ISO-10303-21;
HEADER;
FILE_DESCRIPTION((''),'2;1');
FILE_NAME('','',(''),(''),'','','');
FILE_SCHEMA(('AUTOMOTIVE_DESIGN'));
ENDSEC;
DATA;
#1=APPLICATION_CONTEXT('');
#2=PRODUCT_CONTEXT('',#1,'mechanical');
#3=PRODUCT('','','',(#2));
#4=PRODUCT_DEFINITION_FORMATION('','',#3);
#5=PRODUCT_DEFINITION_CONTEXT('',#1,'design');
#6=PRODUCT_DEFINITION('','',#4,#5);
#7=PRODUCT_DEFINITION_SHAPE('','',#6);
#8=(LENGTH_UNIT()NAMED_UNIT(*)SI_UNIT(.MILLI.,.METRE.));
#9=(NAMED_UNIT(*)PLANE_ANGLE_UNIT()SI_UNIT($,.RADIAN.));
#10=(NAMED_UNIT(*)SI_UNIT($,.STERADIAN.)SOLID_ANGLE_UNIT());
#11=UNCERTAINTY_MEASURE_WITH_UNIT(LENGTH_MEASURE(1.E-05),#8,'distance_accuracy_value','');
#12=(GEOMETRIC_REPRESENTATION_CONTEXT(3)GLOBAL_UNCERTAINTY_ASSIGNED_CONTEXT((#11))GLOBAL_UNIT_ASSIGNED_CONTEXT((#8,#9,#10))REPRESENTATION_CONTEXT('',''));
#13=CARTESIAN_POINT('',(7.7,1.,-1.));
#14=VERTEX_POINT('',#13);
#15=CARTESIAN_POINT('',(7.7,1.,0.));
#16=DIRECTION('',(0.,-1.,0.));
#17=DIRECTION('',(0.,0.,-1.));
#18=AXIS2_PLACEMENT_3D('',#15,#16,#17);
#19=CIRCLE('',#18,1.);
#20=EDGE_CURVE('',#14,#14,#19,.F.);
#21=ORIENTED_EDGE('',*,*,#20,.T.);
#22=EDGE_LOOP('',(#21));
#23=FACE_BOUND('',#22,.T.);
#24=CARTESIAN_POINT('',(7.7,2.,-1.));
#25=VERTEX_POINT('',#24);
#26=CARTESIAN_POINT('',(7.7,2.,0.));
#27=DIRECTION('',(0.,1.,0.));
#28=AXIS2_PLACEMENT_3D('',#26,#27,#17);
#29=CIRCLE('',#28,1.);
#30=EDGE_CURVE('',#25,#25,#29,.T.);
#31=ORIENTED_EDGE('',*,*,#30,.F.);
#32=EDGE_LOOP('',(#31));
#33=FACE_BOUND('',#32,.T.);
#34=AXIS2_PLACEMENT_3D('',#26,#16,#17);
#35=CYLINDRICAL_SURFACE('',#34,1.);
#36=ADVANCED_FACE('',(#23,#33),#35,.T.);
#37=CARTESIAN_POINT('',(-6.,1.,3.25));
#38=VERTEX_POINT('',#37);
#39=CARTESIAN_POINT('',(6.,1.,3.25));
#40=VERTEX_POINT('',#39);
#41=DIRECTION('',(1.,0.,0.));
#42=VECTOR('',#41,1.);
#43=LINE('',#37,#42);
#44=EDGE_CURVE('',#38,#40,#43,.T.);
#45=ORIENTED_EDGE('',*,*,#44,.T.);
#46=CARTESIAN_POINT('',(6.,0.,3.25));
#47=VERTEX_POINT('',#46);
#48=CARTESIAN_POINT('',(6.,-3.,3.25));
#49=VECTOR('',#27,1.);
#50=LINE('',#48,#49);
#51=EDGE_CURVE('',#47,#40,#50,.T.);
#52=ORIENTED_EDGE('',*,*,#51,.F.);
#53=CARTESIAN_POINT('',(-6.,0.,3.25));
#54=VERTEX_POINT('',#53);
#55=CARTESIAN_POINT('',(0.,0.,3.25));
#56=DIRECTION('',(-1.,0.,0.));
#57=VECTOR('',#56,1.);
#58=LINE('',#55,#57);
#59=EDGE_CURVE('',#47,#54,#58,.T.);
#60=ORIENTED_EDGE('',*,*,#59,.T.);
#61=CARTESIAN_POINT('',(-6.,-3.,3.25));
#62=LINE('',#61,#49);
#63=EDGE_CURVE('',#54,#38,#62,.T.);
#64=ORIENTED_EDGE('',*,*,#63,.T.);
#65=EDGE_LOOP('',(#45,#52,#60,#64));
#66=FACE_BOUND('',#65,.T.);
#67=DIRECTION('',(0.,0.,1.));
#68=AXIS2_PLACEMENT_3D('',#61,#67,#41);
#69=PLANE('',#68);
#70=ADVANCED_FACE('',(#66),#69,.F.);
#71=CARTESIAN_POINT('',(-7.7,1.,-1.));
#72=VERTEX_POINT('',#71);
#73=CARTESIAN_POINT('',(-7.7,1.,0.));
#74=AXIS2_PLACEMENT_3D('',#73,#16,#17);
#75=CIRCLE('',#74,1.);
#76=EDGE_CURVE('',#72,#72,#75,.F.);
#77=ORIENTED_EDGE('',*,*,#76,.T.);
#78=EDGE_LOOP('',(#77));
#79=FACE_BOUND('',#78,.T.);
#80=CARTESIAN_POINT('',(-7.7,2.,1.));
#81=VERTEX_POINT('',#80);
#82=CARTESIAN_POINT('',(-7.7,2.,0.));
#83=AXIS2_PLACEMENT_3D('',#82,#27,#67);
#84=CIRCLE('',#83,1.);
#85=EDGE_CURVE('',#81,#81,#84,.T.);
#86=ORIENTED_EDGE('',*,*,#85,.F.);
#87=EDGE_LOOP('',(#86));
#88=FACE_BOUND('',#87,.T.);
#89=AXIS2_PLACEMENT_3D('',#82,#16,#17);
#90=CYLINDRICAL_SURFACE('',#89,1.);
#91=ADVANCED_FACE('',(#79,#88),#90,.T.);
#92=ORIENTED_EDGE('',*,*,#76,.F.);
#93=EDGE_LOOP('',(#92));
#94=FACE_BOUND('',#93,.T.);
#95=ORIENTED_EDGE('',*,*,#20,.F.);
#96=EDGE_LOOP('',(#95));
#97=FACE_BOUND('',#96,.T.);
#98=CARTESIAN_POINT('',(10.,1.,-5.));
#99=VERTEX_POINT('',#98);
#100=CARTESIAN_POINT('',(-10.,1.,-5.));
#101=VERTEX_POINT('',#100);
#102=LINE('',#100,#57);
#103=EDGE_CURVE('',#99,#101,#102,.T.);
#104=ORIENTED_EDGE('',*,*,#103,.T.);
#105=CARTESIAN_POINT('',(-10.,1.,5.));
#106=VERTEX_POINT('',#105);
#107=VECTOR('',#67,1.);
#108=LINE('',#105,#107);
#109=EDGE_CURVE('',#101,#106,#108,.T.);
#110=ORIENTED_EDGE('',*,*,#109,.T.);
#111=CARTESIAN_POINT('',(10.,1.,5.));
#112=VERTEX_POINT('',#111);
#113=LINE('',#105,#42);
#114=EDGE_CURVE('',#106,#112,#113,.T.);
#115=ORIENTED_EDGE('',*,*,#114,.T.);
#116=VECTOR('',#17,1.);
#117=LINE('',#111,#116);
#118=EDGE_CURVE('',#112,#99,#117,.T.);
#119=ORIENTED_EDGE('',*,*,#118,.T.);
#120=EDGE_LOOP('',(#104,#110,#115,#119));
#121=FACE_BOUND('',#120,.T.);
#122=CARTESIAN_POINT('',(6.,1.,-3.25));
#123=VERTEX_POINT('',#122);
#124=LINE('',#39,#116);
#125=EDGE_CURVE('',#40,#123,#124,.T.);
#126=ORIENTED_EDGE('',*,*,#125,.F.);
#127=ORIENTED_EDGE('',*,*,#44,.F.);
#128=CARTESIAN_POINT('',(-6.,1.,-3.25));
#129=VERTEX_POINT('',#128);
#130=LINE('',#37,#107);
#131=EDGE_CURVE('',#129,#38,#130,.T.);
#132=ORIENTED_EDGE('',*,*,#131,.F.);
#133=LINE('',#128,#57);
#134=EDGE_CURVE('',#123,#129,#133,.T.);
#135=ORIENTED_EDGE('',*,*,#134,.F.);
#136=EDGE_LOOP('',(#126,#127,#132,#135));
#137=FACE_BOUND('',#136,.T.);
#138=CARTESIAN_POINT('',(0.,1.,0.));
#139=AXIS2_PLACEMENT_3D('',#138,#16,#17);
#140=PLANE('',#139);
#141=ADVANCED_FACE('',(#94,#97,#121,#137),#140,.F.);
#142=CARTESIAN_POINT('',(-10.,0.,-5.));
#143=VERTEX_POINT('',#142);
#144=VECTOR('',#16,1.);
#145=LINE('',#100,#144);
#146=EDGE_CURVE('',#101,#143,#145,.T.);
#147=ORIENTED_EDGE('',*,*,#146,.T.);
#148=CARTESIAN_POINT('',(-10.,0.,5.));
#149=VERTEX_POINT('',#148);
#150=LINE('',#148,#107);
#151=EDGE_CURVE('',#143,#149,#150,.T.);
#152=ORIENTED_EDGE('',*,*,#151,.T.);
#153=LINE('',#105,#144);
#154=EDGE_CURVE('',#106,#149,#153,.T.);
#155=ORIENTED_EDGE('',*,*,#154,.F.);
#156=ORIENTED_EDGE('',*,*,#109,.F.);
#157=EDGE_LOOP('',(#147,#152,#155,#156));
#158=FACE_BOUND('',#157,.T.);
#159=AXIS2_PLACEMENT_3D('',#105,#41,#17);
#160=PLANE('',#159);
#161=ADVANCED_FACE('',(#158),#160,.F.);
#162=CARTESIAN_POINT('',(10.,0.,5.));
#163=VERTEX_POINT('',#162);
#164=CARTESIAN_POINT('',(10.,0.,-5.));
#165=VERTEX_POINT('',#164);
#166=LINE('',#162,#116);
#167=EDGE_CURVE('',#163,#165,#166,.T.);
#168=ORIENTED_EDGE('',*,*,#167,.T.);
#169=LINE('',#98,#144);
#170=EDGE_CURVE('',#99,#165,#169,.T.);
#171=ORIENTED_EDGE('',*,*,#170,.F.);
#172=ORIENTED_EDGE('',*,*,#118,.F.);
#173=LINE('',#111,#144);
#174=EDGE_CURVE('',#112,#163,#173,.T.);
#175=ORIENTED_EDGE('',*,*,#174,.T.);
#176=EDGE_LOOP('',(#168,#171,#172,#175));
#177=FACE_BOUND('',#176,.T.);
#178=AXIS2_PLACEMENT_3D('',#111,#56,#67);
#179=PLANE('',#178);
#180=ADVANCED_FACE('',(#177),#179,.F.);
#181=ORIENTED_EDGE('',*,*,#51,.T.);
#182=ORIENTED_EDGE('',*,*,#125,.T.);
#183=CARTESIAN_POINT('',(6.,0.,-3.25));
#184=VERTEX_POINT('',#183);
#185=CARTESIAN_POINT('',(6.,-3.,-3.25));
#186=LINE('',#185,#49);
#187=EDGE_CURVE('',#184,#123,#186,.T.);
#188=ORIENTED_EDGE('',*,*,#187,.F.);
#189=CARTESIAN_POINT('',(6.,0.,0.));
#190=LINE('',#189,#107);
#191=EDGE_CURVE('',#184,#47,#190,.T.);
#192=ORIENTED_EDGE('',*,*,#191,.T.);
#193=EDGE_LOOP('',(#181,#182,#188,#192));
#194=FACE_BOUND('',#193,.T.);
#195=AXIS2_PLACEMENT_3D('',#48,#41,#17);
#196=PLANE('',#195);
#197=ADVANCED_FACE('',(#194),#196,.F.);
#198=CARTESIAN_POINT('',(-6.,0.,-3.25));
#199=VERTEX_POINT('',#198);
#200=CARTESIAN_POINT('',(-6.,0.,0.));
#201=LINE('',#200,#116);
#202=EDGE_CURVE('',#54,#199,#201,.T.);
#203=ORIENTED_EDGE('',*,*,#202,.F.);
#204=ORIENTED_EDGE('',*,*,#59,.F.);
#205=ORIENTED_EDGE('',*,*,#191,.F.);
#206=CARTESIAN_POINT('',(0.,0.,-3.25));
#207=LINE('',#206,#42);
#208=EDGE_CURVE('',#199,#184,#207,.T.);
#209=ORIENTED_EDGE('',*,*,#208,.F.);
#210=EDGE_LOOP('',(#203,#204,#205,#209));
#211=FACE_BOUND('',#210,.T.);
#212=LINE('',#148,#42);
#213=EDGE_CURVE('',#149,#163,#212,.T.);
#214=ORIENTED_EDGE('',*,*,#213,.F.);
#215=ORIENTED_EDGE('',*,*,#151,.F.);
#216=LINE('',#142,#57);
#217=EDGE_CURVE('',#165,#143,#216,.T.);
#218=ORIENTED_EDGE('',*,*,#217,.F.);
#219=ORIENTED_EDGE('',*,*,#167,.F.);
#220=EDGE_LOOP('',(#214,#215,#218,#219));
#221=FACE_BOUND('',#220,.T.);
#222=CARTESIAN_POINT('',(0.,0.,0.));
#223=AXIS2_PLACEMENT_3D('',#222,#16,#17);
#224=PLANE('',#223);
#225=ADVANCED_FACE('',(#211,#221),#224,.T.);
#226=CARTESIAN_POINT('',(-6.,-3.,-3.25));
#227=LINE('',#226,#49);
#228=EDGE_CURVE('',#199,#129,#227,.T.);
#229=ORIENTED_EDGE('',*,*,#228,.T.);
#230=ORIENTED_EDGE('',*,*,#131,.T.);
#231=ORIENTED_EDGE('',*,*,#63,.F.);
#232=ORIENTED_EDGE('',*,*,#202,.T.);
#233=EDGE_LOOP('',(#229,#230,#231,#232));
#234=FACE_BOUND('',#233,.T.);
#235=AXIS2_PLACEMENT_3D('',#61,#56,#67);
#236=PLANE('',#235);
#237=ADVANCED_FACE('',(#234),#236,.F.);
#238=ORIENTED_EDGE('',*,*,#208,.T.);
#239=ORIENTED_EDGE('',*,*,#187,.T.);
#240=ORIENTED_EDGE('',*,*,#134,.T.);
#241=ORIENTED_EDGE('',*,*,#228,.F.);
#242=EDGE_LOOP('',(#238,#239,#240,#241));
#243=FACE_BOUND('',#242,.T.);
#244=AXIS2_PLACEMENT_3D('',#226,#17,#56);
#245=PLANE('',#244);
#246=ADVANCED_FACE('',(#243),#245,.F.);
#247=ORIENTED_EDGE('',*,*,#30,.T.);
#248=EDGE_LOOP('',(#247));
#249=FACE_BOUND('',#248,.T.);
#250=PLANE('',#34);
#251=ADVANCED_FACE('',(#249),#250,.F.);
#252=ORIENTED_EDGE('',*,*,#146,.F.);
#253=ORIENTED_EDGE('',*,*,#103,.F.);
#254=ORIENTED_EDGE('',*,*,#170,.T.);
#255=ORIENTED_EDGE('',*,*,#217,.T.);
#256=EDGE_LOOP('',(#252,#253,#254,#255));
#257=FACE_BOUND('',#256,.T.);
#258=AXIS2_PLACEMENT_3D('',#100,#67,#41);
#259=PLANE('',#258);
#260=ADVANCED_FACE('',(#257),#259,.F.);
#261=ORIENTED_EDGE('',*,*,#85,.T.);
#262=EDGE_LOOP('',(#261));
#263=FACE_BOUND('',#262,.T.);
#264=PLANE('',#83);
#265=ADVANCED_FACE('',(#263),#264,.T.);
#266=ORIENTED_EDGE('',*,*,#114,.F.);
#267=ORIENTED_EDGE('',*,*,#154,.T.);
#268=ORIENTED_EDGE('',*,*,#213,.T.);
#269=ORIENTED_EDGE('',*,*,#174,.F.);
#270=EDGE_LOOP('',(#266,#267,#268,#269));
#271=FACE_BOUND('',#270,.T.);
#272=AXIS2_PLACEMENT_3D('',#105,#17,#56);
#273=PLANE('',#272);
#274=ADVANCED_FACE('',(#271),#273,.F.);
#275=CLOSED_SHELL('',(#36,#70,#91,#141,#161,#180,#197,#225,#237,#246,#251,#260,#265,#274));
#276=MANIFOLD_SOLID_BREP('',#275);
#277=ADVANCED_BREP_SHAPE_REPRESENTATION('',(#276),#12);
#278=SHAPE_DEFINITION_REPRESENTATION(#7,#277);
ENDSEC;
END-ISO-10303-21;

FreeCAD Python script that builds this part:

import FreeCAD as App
import Part
import Sketcher
from FreeCAD import Vector
Q = App.Units.Quantity

doc = App.newDocument("Part")
body = doc.addObject("PartDesign::Body", "Body")

# Sketch on XZ plane
sketch1 = body.newObject("Sketcher::SketchObject", "Sketch")
sketch1.AttachmentSupport = (doc.getObject("XZ_Plane"), [""])
sketch1.MapMode = "FlatFace"
sketch1.addGeometry(Part.LineSegment(Vector(-10, -5, 0), Vector(-10, 5, 0)), False)
sketch1.addGeometry(Part.LineSegment(Vector(-10, 5, 0), Vector(10, 5, 0)), False)
sketch1.addGeometry(Part.LineSegment(Vector(10, 5, 0), Vector(10, -5, 0)), False)
sketch1.addGeometry(Part.LineSegment(Vector(10, -5, 0), Vector(-10, -5, 0)), False)
sketch1.addConstraint(Sketcher.Constraint("Coincident", 0, 2, 1, 1))
sketch1.addConstraint(Sketcher.Constraint("Coincident", 1, 2, 2, 1))
sketch1.addConstraint(Sketcher.Constraint("Coincident", 2, 2, 3, 1))
sketch1.addConstraint(Sketcher.Constraint("Coincident", 3, 2, 0, 1))
sketch1.addConstraint(Sketcher.Constraint("Vertical", 0))
sketch1.addConstraint(Sketcher.Constraint("Horizontal", 1))
sketch1.addConstraint(Sketcher.Constraint("Vertical", 2))
sketch1.addConstraint(Sketcher.Constraint("Horizontal", 3))
sketch1.addConstraint(Sketcher.Constraint("Symmetric", 0, 2, 2, 2, -1, 1))
sketch1.addConstraint(Sketcher.Constraint("DistanceX", 1, 1, 1, 2, Q("20 mm")))
sketch1.addConstraint(Sketcher.Constraint("DistanceY", 0, 1, 0, 2, Q("10 mm")))
pad1 = body.newObject("PartDesign::Pad", "Pad")
pad1.Profile = sketch1
pad1.Length = 1
pad1.Reversed = True

# Sketch on XZ plane
sketch2 = body.newObject("Sketcher::SketchObject", "Sketch001")
sketch2.AttachmentSupport = (doc.getObject("XZ_Plane"), [""])
sketch2.MapMode = "FlatFace"
sketch2.AttachmentOffset = App.Placement(Vector(0, 0, -1), App.Rotation())
sketch2.addGeometry(Part.LineSegment(Vector(-6, -3, 0), Vector(-6, 3, 0)), False)
sketch2.addGeometry(Part.LineSegment(Vector(-6, 3, 0), Vector(6, 3, 0)), False)
sketch2.addGeometry(Part.LineSegment(Vector(6, 3, 0), Vector(6, -3, 0)), False)
sketch2.addGeometry(Part.LineSegment(Vector(6, -3, 0), Vector(-6, -3, 0)), False)
sketch2.addConstraint(Sketcher.Constraint("Coincident", 0, 2, 1, 1))
sketch2.addConstraint(Sketcher.Constraint("Coincident", 1, 2, 2, 1))
sketch2.addConstraint(Sketcher.Constraint("Coincident", 2, 2, 3, 1))
sketch2.addConstraint(Sketcher.Constraint("Coincident", 3, 2, 0, 1))
sketch2.addConstraint(Sketcher.Constraint("Vertical", 0))
sketch2.addConstraint(Sketcher.Constraint("Horizontal", 1))
sketch2.addConstraint(Sketcher.Constraint("Vertical", 2))
sketch2.addConstraint(Sketcher.Constraint("Horizontal", 3))
sketch2.addConstraint(Sketcher.Constraint("Symmetric", 0, 2, 2, 2, -1, 1))
sketch2.addConstraint(Sketcher.Constraint("DistanceX", 1, 1, 1, 2, Q("12 mm")))
sketch2.addConstraint(Sketcher.Constraint("DistanceY", 0, 1, 0, 2, Q("6.5 mm")))
pocket1 = body.newObject("PartDesign::Pocket", "Pocket")
pocket1.Profile = sketch2
pocket1.Length = 4
pocket1.Reversed = True

# Sketch on XZ plane
sketch3 = body.newObject("Sketcher::SketchObject", "Sketch002")
sketch3.AttachmentSupport = (doc.getObject("XZ_Plane"), [""])
sketch3.MapMode = "FlatFace"
sketch3.AttachmentOffset = App.Placement(Vector(0, 0, -1), App.Rotation())
sketch3.addGeometry(Part.Circle(Vector(-7.7, 0, 0), Vector(0, 0, 1), 1), False)
sketch3.addGeometry(Part.Circle(Vector(7.7, 0, 0), Vector(0, 0, 1), 1), False)
sketch3.addConstraint(Sketcher.Constraint("Equal", 0, 1))
sketch3.addConstraint(Sketcher.Constraint("Symmetric", 0, 3, 1, 3, -1, 1))
sketch3.addConstraint(Sketcher.Constraint("PointOnObject", 0, 3, -1))
sketch3.addConstraint(Sketcher.Constraint("Diameter", 0, Q("2 mm")))
sketch3.addConstraint(Sketcher.Constraint("DistanceX", 0, 3, -1, 1, Q("7.7 mm")))
pad2 = body.newObject("PartDesign::Pad", "Pad001")
pad2.Profile = sketch3
pad2.Length = 1
pad2.Reversed = True

doc.recompute()
